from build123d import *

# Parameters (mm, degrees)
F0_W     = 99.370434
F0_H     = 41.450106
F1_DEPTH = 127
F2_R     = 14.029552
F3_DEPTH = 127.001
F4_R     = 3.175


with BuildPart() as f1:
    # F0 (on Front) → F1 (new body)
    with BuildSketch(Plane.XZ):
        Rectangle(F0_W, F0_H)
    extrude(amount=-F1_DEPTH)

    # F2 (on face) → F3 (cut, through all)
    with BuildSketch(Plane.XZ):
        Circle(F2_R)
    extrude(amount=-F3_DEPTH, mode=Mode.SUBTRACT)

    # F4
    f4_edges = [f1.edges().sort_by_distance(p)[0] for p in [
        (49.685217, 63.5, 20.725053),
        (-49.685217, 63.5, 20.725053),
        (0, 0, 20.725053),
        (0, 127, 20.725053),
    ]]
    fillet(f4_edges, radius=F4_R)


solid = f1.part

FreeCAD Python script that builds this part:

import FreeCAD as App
import Part
import Sketcher

V = App.Vector


def edges_at(feature, points):
    """Names of the edges that pass closest to the given points."""
    edges = feature.Shape.Edges
    near = lambda p: min(range(len(edges)), key=lambda i: edges[i].distToShape(Part.Vertex(*p))[0])
    return sorted({f"Edge{near(p) + 1}" for p in points})

doc = App.newDocument("Part")
params = doc.addObject("Spreadsheet::Sheet", "Params")
for row, (alias, value) in enumerate([
    ("pad1_length", "5 in"),
    ("fillet_radius", "0.125 in"),
], start=1):
    params.set(f"A{row}", alias)
    params.set(f"B{row}", "=" + value)
    params.setAlias(f"B{row}", alias)

body = doc.addObject("PartDesign::Body", "Body")

sketch1 = doc.addObject("Sketcher::SketchObject", "Sketch")
body.addObject(sketch1)
sketch1.AttachmentSupport = (doc.XZ_Plane, [""])
sketch1.MapMode = "FlatFace"
sketch1.addGeometry([
    Part.LineSegment(V(-49.685217, 20.725053, 0), V(-49.685217, -20.725053, 0)),
    Part.LineSegment(V(-49.685217, -20.725053, 0), V(49.685217, -20.725053, 0)),
    Part.LineSegment(V(49.685217, -20.725053, 0), V(49.685217, 20.725053, 0)),
    Part.LineSegment(V(49.685217, 20.725053, 0), V(-49.685217, 20.725053, 0)),
], False)
sketch1.addConstraint([
    Sketcher.Constraint("Coincident", 0, 2, 1, 1),
    Sketcher.Constraint("Coincident", 1, 2, 2, 1),
    Sketcher.Constraint("Coincident", 2, 2, 3, 1),
    Sketcher.Constraint("Coincident", 3, 2, 0, 1),
    Sketcher.Constraint("Vertical", 0),
    Sketcher.Constraint("Horizontal", 1),
    Sketcher.Constraint("Vertical", 2),
    Sketcher.Constraint("Horizontal", 3),
    Sketcher.Constraint("Symmetric", 0, 2, 2, 2, -1, 1),
    Sketcher.Constraint("DistanceX", 1, 1, 1, 2, 99.370434),
    Sketcher.Constraint("DistanceY", 0, 2, 0, 1, 41.450106),
])
pad1 = doc.addObject("PartDesign::Pad", "Pad")
body.addObject(pad1)
pad1.Profile = sketch1
pad1.setExpression("Length", "Params.pad1_length")
pad1.Reversed = True

sketch2 = doc.addObject("Sketcher::SketchObject", "Sketch001")
body.addObject(sketch2)
sketch2.AttachmentSupport = (doc.XZ_Plane, [""])
sketch2.MapMode = "FlatFace"
sketch2.addGeometry(Part.Circle(V(0, 0, 0), V(0, 0, 1), 14.029552), False)
sketch2.addConstraint([
    Sketcher.Constraint("Coincident", 0, 3, -1, 1),
    Sketcher.Constraint("Diameter", 0, 28.059104),
])
pocket1 = doc.addObject("PartDesign::Pocket", "Pocket")
body.addObject(pocket1)
pocket1.Profile = sketch2
pocket1.Type = "ThroughAll"
doc.recompute()

fillet = doc.addObject("PartDesign::Fillet", "Fillet")
body.addObject(fillet)
fillet.Base = (pocket1, edges_at(pocket1, [
    (49.685, 63.5, 20.725),
    (-49.685, 63.5, 20.725),
    (0, 0, 20.725),
    (0, 127, 20.725),
]))
fillet.setExpression("Radius", "Params.fillet_radius")

doc.recompute()
